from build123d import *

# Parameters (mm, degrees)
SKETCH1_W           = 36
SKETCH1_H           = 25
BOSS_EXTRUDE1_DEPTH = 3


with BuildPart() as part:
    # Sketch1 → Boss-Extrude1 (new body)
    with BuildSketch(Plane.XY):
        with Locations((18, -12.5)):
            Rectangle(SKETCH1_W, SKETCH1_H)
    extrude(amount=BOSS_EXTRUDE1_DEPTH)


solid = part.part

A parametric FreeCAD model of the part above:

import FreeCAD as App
import Part
import Sketcher
from FreeCAD import Vector
Q = App.Units.Quantity

doc = App.newDocument("Part")
body = doc.addObject("PartDesign::Body", "Body")

# Sketch on XY plane
sketch1 = body.newObject("Sketcher::SketchObject", "Sketch")
sketch1.AttachmentSupport = (doc.getObject("XY_Plane"), [""])
sketch1.MapMode = "FlatFace"
sketch1.addGeometry(Part.LineSegment(Vector(0, 0, 0), Vector(0, -25, 0)), False)
sketch1.addGeometry(Part.LineSegment(Vector(0, -25, 0), Vector(36, -25, 0)), False)
sketch1.addGeometry(Part.LineSegment(Vector(36, -25, 0), Vector(36, 0, 0)), False)
sketch1.addGeometry(Part.LineSegment(Vector(36, 0, 0), Vector(0, 0, 0)), False)
sketch1.addConstraint(Sketcher.Constraint("Coincident", 0, 2, 1, 1))
sketch1.addConstraint(Sketcher.Constraint("Coincident", 1, 2, 2, 1))
sketch1.addConstraint(Sketcher.Constraint("Coincident", 2, 2, 3, 1))
sketch1.addConstraint(Sketcher.Constraint("Coincident", 3, 2, 0, 1))
sketch1.addConstraint(Sketcher.Constraint("Vertical", 0))
sketch1.addConstraint(Sketcher.Constraint("Horizontal", 1))
sketch1.addConstraint(Sketcher.Constraint("Vertical", 2))
sketch1.addConstraint(Sketcher.Constraint("Horizontal", 3))
sketch1.addConstraint(Sketcher.Constraint("Coincident", 3, 2, -1, 1))
sketch1.addConstraint(Sketcher.Constraint("DistanceX", 1, 1, 1, 2, Q("36 mm")))
sketch1.addConstraint(Sketcher.Constraint("DistanceY", 0, 2, 0, 1, Q("25 mm")))
pad1 = body.newObject("PartDesign::Pad", "Pad")
pad1.Profile = sketch1
pad1.Length = 3

doc.recompute()
